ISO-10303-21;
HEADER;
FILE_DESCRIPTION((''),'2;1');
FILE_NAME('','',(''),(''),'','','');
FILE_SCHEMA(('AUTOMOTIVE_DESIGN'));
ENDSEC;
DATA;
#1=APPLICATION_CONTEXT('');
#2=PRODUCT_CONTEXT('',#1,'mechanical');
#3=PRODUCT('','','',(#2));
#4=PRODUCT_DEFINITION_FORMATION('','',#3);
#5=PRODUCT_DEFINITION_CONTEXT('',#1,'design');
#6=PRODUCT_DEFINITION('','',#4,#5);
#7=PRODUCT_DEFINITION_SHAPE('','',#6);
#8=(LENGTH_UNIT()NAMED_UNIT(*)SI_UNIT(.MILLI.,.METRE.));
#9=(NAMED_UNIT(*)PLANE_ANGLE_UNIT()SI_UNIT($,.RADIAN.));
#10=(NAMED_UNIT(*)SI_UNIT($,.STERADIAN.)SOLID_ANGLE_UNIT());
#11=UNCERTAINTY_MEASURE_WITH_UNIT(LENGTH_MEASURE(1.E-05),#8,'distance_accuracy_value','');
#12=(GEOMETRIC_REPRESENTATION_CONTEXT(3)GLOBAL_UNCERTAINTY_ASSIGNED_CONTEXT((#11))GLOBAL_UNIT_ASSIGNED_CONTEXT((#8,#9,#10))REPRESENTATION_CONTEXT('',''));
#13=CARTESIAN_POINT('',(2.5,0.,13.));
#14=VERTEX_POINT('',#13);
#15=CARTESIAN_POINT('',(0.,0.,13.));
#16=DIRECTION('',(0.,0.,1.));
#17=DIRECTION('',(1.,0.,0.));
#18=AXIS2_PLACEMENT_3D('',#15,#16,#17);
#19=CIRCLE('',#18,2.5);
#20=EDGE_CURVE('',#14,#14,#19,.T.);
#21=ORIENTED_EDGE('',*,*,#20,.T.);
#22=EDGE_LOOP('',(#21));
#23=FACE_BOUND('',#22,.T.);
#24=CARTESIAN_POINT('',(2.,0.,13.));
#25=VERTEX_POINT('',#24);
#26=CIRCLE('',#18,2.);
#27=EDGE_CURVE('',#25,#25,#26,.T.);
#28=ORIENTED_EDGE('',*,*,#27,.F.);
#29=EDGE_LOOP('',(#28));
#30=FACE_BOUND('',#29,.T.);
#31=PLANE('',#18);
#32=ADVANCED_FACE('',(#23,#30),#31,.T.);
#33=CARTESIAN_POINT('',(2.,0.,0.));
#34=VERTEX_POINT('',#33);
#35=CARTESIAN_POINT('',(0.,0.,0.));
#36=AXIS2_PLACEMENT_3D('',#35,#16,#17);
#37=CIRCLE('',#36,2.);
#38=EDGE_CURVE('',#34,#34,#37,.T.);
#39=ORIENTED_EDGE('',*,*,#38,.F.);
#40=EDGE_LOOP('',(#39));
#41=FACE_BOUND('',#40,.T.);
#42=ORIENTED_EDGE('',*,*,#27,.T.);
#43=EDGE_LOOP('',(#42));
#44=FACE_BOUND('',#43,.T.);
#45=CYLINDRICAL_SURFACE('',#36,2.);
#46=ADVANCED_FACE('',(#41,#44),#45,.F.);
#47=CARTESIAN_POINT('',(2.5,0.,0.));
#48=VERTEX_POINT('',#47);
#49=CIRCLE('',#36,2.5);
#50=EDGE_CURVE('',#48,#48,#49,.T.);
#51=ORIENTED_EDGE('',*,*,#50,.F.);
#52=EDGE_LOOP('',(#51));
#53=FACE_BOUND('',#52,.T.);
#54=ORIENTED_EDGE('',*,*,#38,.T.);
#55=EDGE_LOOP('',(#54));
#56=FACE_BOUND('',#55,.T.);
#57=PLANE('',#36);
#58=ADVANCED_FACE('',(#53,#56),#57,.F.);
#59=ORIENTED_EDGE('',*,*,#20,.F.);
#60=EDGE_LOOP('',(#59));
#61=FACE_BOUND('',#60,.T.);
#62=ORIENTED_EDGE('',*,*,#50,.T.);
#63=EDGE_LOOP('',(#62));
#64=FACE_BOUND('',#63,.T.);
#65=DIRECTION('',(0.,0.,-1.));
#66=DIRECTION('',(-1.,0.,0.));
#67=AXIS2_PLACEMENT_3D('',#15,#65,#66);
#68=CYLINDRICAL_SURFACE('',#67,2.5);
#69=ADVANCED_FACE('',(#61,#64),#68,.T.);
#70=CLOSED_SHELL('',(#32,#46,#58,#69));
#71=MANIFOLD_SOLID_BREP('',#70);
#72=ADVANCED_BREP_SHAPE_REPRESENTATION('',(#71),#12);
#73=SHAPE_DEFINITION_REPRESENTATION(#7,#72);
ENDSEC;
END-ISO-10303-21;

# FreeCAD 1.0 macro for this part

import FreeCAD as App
import Part
import Sketcher
from FreeCAD import Vector
Q = App.Units.Quantity

doc = App.newDocument("Part")
body = doc.addObject("PartDesign::Body", "Body")

# Sketch on XY plane
sketch1 = body.newObject("Sketcher::SketchObject", "Sketch")
sketch1.AttachmentSupport = (doc.getObject("XY_Plane"), [""])
sketch1.MapMode = "FlatFace"
sketch1.addGeometry(Part.Circle(Vector(0, 0, 0), Vector(0, 0, 1), 2.5), False)
sketch1.addConstraint(Sketcher.Constraint("Coincident", 0, 3, -1, 1))
sketch1.addConstraint(Sketcher.Constraint("Diameter", 0, Q("5 mm")))
pad1 = body.newObject("PartDesign::Pad", "Pad")
pad1.Profile = sketch1
pad1.Length = 13

# Sketch on XY plane
sketch2 = body.newObject("Sketcher::SketchObject", "Sketch001")
sketch2.AttachmentSupport = (doc.getObject("XY_Plane"), [""])
sketch2.MapMode = "FlatFace"
sketch2.AttachmentOffset = App.Placement(Vector(0, 0, 13), App.Rotation())
sketch2.addGeometry(Part.Circle(Vector(0, 0, 0), Vector(0, 0, 1), 2), False)
sketch2.addConstraint(Sketcher.Constraint("Coincident", 0, 3, -1, 1))
sketch2.addConstraint(Sketcher.Constraint("Diameter", 0, Q("4 mm")))
pocket1 = body.newObject("PartDesign::Pocket", "Pocket")
pocket1.Profile = sketch2
pocket1.Type = "ThroughAll"

doc.recompute()
